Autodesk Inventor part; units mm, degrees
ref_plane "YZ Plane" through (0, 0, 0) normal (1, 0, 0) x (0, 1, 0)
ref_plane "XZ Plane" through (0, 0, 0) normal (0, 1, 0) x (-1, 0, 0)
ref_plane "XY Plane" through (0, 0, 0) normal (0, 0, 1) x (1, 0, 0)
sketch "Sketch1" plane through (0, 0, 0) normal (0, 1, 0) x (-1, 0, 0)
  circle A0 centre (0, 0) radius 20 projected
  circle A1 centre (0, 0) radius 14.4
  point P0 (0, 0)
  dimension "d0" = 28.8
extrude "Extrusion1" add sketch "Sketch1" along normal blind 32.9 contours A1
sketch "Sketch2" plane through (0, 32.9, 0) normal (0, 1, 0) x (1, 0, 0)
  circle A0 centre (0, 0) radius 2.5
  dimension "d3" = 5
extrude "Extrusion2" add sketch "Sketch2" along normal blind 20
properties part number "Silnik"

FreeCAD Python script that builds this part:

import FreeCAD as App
import Part
import Sketcher
from FreeCAD import Vector

doc = App.newDocument("Part")
params = doc.addObject("Spreadsheet::Sheet", "Params")
for row, (alias, value) in enumerate([
    ("sketch1_diameter", "28.8 mm"),
    ("pad1_length", "32.9 mm"),
    ("sketch2_diameter", "5 mm"),
    ("pad2_length", "20 mm"),
], start=1):
    params.set(f"A{row}", alias)
    params.set(f"B{row}", "=" + value)
    params.setAlias(f"B{row}", alias)

body = doc.addObject("PartDesign::Body", "Body")

sketch1 = body.newObject("Sketcher::SketchObject", "Sketch")
sketch1.AttachmentSupport = (doc.getObject("XZ_Plane"), [""])
sketch1.MapMode = "FlatFace"
sketch1.addGeometry(Part.Circle(Vector(0, 0, 0), Vector(0, 0, 1), 14.4), False)
sketch1.addConstraint(Sketcher.Constraint("Coincident", 0, 3, -1, 1))
sketch1.addConstraint(Sketcher.Constraint("Diameter", 0, 28.8))
sketch1.setExpression("Constraints[1]", "Params.sketch1_diameter")
pad1 = body.newObject("PartDesign::Pad", "Pad")
pad1.Profile = sketch1
pad1.setExpression("Length", "Params.pad1_length")
pad1.Reversed = True

sketch2 = body.newObject("Sketcher::SketchObject", "Sketch001")
sketch2.AttachmentSupport = (doc.getObject("XZ_Plane"), [""])
sketch2.MapMode = "FlatFace"
sketch2.AttachmentOffset = App.Placement(Vector(0, 0, -32.9), App.Rotation())
sketch2.addGeometry(Part.Circle(Vector(0, 0, 0), Vector(0, 0, 1), 2.5), False)
sketch2.addConstraint(Sketcher.Constraint("Coincident", 0, 3, -1, 1))
sketch2.addConstraint(Sketcher.Constraint("Diameter", 0, 5.0))
sketch2.setExpression("Constraints[1]", "Params.sketch2_diameter")
pad2 = body.newObject("PartDesign::Pad", "Pad001")
pad2.Profile = sketch2
pad2.setExpression("Length", "Params.pad2_length")
pad2.Reversed = True

doc.recompute()
